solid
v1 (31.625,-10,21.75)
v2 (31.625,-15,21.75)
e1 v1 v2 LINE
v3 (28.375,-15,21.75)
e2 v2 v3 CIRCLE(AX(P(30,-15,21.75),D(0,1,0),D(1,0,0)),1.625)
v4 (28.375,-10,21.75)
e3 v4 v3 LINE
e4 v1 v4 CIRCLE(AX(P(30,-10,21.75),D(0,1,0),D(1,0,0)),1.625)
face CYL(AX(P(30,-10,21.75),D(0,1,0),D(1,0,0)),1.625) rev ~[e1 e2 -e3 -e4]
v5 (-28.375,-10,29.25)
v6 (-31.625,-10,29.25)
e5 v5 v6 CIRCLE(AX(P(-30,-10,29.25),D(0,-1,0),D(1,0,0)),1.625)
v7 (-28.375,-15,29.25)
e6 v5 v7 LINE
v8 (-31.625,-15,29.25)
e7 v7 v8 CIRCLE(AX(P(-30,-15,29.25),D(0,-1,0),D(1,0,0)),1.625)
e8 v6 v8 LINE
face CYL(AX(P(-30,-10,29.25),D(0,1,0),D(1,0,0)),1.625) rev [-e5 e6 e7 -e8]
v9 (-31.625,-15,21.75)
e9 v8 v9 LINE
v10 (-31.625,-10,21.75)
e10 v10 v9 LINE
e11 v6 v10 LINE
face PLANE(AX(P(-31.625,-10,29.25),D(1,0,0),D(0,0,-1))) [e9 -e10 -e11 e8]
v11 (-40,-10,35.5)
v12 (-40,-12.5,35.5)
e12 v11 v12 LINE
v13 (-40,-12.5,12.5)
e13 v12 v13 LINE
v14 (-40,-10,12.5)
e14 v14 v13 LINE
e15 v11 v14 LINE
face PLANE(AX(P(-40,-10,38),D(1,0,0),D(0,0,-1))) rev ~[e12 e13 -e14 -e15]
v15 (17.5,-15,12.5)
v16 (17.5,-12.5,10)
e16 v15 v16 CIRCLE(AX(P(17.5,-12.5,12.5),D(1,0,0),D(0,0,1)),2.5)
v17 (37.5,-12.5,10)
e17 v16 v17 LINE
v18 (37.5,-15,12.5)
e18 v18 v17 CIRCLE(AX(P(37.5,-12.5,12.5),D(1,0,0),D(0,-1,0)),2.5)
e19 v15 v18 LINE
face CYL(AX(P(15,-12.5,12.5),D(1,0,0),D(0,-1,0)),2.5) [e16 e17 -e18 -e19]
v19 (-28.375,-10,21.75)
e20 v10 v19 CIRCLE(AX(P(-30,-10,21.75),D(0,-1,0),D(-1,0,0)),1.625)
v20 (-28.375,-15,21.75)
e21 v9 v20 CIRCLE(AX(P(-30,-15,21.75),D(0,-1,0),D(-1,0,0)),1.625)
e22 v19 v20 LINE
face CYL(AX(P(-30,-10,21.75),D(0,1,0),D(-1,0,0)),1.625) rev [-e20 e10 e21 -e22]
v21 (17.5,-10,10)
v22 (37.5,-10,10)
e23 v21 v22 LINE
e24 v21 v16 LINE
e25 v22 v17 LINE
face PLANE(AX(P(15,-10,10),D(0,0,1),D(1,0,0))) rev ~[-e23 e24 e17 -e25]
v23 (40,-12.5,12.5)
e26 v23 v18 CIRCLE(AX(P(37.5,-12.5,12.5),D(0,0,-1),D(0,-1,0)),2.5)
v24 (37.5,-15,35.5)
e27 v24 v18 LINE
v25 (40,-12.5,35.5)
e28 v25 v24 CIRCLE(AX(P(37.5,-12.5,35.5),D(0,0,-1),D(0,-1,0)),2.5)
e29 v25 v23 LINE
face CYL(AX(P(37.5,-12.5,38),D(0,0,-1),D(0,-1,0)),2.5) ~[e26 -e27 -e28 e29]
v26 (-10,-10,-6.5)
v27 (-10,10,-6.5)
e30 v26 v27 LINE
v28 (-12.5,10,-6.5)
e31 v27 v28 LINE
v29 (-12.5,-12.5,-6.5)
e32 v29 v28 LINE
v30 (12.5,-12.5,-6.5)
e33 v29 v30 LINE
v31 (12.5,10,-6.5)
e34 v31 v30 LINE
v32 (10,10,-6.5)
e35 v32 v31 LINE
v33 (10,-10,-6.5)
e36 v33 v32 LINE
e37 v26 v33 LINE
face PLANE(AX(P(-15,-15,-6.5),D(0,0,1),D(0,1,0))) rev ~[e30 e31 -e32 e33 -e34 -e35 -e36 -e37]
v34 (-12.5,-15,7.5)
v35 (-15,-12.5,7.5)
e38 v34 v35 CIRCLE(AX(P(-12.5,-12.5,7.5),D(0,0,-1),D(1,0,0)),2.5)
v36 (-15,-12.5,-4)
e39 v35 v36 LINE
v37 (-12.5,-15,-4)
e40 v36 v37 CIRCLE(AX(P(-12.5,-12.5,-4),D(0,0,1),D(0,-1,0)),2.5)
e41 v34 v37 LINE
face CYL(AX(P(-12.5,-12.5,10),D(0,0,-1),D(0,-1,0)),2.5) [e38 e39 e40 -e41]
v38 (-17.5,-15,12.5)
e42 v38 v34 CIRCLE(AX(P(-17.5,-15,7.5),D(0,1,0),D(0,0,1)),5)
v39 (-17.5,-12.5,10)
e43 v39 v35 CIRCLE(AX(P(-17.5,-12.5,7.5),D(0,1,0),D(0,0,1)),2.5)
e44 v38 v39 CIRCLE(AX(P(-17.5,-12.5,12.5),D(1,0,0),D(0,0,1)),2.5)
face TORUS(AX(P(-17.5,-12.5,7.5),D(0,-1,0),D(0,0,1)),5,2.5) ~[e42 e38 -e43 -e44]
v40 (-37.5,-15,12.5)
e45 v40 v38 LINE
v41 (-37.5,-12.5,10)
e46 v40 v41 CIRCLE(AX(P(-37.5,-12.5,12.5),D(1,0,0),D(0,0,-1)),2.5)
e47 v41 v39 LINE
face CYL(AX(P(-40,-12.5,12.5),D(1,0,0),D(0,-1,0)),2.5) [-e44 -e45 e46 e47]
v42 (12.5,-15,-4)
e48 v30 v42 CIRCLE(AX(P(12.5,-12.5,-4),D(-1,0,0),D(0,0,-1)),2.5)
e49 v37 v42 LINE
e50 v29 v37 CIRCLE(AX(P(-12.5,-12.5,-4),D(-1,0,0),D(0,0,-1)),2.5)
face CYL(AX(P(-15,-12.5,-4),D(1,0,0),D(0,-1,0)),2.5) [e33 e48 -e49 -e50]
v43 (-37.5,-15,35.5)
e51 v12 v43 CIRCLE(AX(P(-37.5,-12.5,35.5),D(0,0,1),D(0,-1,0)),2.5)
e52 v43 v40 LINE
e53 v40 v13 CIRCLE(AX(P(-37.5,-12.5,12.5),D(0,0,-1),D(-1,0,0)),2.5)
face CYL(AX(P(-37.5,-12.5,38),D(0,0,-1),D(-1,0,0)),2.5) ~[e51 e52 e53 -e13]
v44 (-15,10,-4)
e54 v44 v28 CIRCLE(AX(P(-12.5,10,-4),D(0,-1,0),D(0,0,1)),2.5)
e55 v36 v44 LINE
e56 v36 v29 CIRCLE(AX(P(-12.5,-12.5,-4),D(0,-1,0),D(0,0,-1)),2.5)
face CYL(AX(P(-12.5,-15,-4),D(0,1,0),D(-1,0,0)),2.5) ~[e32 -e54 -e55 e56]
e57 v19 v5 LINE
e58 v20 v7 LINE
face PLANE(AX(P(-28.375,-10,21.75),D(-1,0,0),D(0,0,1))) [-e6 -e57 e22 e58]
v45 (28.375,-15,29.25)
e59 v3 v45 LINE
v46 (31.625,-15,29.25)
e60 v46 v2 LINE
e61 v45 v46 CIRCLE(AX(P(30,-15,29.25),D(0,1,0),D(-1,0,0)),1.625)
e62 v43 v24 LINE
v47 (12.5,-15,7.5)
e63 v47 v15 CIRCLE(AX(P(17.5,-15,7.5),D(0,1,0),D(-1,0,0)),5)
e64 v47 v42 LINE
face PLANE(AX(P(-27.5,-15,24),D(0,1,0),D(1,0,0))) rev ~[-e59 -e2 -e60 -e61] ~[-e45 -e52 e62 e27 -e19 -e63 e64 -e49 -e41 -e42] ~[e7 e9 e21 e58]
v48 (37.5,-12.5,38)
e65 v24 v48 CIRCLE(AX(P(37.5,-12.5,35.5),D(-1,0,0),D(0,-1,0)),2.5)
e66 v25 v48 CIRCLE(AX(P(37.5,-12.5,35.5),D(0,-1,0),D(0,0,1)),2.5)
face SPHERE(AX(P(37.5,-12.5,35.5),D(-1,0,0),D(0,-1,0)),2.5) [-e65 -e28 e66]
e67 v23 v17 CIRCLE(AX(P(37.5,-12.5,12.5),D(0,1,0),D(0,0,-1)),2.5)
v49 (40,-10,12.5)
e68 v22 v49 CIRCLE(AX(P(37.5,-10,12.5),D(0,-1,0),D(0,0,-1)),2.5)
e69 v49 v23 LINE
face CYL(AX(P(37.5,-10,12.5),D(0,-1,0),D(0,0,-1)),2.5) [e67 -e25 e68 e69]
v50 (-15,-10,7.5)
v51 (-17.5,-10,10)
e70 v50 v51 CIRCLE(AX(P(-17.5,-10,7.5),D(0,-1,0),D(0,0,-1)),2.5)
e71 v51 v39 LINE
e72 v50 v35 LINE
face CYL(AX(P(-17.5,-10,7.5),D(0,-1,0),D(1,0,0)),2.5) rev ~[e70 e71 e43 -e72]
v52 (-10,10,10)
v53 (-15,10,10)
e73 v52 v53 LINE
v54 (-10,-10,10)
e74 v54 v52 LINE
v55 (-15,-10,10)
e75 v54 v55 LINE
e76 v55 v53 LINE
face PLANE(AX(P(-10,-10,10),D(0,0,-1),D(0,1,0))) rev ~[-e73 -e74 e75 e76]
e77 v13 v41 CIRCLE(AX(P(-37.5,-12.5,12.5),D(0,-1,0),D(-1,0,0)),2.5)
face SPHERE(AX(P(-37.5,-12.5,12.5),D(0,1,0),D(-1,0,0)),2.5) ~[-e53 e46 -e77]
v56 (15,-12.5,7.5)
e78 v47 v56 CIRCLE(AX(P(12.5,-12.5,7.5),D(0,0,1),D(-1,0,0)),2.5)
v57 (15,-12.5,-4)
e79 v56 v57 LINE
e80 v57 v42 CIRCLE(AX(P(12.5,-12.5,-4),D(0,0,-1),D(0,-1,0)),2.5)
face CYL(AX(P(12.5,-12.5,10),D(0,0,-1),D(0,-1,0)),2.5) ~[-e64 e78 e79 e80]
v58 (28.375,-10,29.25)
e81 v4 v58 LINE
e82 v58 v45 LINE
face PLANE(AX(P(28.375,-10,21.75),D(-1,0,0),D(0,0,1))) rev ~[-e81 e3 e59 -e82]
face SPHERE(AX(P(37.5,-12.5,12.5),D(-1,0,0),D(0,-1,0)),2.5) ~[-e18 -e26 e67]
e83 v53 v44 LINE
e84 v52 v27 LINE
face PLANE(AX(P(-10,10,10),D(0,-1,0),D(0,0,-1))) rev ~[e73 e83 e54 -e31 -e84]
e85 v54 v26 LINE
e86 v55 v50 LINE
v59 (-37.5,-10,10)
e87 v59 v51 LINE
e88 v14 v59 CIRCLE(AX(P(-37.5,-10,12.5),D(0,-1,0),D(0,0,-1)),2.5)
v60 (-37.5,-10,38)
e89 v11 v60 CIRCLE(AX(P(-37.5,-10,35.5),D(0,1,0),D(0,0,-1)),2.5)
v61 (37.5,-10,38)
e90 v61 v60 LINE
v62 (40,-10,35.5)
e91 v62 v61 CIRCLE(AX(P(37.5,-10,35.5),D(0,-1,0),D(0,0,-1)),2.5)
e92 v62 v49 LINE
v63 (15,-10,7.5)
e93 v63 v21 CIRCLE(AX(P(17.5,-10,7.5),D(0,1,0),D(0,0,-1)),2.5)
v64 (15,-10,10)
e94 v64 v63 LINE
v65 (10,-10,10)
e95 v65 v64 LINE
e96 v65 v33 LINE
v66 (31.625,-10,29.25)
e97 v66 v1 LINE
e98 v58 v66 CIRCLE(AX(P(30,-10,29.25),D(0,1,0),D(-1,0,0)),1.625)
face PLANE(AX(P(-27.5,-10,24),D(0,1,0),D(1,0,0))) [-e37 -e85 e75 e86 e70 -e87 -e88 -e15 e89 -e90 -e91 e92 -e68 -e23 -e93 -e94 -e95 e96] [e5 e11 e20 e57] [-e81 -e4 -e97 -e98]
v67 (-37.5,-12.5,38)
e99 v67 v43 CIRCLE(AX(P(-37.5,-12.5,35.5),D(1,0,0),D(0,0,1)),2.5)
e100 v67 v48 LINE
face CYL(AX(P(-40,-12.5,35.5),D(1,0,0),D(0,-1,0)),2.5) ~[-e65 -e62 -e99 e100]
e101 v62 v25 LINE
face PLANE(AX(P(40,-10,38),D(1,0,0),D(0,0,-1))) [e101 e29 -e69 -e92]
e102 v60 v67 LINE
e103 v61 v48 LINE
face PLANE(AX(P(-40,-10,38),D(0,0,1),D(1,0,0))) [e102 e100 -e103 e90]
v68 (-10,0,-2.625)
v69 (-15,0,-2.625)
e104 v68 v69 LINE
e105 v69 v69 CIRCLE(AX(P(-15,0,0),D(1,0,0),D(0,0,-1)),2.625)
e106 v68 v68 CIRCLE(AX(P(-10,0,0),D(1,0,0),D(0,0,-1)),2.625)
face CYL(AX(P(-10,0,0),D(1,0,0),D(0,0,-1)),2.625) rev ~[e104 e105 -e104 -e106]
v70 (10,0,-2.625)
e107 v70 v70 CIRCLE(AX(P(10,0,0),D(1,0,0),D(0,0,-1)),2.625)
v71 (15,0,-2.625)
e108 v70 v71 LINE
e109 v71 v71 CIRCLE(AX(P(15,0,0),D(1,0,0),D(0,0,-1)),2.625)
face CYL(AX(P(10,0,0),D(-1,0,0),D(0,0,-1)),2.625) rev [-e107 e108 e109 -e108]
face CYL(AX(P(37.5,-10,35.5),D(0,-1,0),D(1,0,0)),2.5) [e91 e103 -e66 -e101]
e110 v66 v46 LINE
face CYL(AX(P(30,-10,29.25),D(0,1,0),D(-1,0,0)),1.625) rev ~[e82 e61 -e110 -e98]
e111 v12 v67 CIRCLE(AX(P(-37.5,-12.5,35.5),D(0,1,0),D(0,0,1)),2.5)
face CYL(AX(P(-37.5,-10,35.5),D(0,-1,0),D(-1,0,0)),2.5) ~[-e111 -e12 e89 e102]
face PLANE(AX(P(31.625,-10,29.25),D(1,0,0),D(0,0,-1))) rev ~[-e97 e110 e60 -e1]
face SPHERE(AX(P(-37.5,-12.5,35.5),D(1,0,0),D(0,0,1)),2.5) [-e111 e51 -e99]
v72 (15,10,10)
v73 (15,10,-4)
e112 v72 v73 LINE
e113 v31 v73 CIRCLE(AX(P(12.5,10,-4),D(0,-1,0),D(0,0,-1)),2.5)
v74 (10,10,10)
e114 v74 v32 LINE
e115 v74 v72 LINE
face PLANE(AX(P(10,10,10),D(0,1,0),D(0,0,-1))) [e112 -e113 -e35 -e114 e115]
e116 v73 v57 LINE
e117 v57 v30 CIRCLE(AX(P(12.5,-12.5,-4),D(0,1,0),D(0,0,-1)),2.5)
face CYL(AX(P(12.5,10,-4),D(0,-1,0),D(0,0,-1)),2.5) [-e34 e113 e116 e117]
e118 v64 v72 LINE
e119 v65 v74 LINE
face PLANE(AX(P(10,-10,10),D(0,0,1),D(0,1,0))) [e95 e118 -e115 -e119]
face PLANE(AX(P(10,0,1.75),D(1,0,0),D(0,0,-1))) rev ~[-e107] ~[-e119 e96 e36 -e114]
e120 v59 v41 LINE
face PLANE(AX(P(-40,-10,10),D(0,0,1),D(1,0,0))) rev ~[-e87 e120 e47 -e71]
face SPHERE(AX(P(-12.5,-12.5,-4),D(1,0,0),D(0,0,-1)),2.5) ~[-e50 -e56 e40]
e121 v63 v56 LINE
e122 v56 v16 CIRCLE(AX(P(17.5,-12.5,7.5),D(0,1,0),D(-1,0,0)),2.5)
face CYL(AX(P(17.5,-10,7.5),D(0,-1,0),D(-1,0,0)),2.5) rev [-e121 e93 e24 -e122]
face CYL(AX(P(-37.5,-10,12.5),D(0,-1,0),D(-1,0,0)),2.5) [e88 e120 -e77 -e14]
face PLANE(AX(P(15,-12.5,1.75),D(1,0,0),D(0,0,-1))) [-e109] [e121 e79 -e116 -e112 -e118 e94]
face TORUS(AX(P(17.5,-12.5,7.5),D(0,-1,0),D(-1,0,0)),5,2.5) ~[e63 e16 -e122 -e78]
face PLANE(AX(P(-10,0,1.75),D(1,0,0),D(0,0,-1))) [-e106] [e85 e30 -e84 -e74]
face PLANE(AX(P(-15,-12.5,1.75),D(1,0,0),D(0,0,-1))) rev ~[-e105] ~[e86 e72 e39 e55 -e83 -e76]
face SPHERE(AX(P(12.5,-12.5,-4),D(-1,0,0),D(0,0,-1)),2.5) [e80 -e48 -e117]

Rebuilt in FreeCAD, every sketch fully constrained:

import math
import FreeCAD as App
import Part
import Sketcher
Q = App.Units.Quantity


def edges_at(feature, points):
    """Names of the edges that pass closest to the given points."""
    edges = feature.Shape.Edges
    near = lambda p: min(range(len(edges)), key=lambda i: edges[i].distToShape(Part.Vertex(*p))[0])
    return sorted({f"Edge{near(p) + 1}" for p in points})

doc = App.newDocument("Part")
body = doc.addObject("PartDesign::Body", "Body")

sketch1 = doc.addObject("Sketcher::SketchObject", "Sketch")
body.addObject(sketch1)
sketch1.AttachmentSupport = (doc.YZ_Plane, [""])
sketch1.MapMode = "FlatFace"
sketch1.AttachmentOffset = App.Placement(App.Vector(0, 0, 10), App.Rotation())
sketch1.addGeometry(Part.LineSegment(App.Vector(10, 10, 0), App.Vector(-10, 10, 0)), False)
sketch1.addGeometry(Part.LineSegment(App.Vector(-10, 10, 0), App.Vector(-10, -6.5, 0)), False)
sketch1.addGeometry(Part.LineSegment(App.Vector(-10, -6.5, 0), App.Vector(10, -6.5, 0)), False)
sketch1.addGeometry(Part.LineSegment(App.Vector(10, -6.5, 0), App.Vector(10, 10, 0)), False)
sketch1.addGeometry(Part.Circle(App.Vector(0, 0, 0), App.Vector(0, 0, 1), 2.6), False)
sketch1.addConstraint(Sketcher.Constraint("Coincident", 0, 2, 1, 1))
sketch1.addConstraint(Sketcher.Constraint("Coincident", 1, 2, 2, 1))
sketch1.addConstraint(Sketcher.Constraint("Coincident", 2, 2, 3, 1))
sketch1.addConstraint(Sketcher.Constraint("Coincident", 3, 2, 0, 1))
sketch1.addConstraint(Sketcher.Constraint("Horizontal", 0))
sketch1.addConstraint(Sketcher.Constraint("Vertical", 1))
sketch1.addConstraint(Sketcher.Constraint("Horizontal", 2))
sketch1.addConstraint(Sketcher.Constraint("Vertical", 3))
sketch1.addConstraint(Sketcher.Constraint("Coincident", 4, 3, -1, 1))
sketch1.addConstraint(Sketcher.Constraint("Diameter", 4, Q("5.25 mm")))
sketch1.addConstraint(Sketcher.Constraint("DistanceX", 0, 2, 0, 1, Q("20 mm")))
sketch1.addConstraint(Sketcher.Constraint("DistanceY", 1, 2, 1, 1, Q("16.5 mm")))
sketch1.addConstraint(Sketcher.Constraint("DistanceX", 0, 2, -1, 1, Q("10 mm")))
sketch1.addConstraint(Sketcher.Constraint("DistanceY", -1, 1, 0, 2, Q("10 mm")))
pad1 = doc.addObject("PartDesign::Pad", "Pad")
body.addObject(pad1)
pad1.Profile = sketch1
pad1.Length = 5
body2 = doc.addObject("PartDesign::Body", "Body001")

sketch2 = doc.addObject("Sketcher::SketchObject", "Sketch001")
body2.addObject(sketch2)
sketch2.AttachmentSupport = (doc.getObject("YZ_Plane001"), [""])
sketch2.MapMode = "FlatFace"
sketch2.AttachmentOffset = App.Placement(App.Vector(0, 0, -10), App.Rotation())
sketch2.addGeometry(Part.LineSegment(App.Vector(10, 10, 0), App.Vector(-10, 10, 0)), False)
sketch2.addGeometry(Part.LineSegment(App.Vector(-10, 10, 0), App.Vector(-10, -6.5, 0)), False)
sketch2.addGeometry(Part.LineSegment(App.Vector(-10, -6.5, 0), App.Vector(10, -6.5, 0)), False)
sketch2.addGeometry(Part.LineSegment(App.Vector(10, -6.5, 0), App.Vector(10, 10, 0)), False)
sketch2.addGeometry(Part.Circle(App.Vector(0, 0, 0), App.Vector(0, 0, 1), 2.6), False)
sketch2.addConstraint(Sketcher.Constraint("Coincident", 0, 2, 1, 1))
sketch2.addConstraint(Sketcher.Constraint("Coincident", 1, 2, 2, 1))
sketch2.addConstraint(Sketcher.Constraint("Coincident", 2, 2, 3, 1))
sketch2.addConstraint(Sketcher.Constraint("Coincident", 3, 2, 0, 1))
sketch2.addConstraint(Sketcher.Constraint("Horizontal", 0))
sketch2.addConstraint(Sketcher.Constraint("Vertical", 1))
sketch2.addConstraint(Sketcher.Constraint("Horizontal", 2))
sketch2.addConstraint(Sketcher.Constraint("Vertical", 3))
sketch2.addConstraint(Sketcher.Constraint("Coincident", 4, 3, -1, 1))
sketch2.addConstraint(Sketcher.Constraint("Diameter", 4, Q("5.25 mm")))
sketch2.addConstraint(Sketcher.Constraint("DistanceX", 0, 2, 0, 1, Q("20 mm")))
sketch2.addConstraint(Sketcher.Constraint("DistanceY", 1, 2, 1, 1, Q("16.5 mm")))
sketch2.addConstraint(Sketcher.Constraint("DistanceX", 0, 2, -1, 1, Q("10 mm")))
sketch2.addConstraint(Sketcher.Constraint("DistanceY", -1, 1, 0, 2, Q("10 mm")))
pad2 = doc.addObject("PartDesign::Pad", "Pad001")
body2.addObject(pad2)
pad2.Profile = sketch2
pad2.Length = 5
pad2.Reversed = True
body.AllowCompound = True
doc.recompute()

boolean = doc.addObject("PartDesign::Boolean", "Boolean")
body.addObject(boolean)
boolean.Type = "Fuse"
boolean.addObjects([body2])

sketch3 = doc.addObject("Sketcher::SketchObject", "Sketch002")
body.addObject(sketch3)
sketch3.AttachmentSupport = (doc.YZ_Plane, [""])
sketch3.MapMode = "FlatFace"
sketch3.AttachmentOffset = App.Placement(App.Vector(0, 0, -15), App.Rotation())
sketch3.addGeometry(Part.LineSegment(App.Vector(-15, -6, 0), App.Vector(-10, -6, 0)), False)
sketch3.addGeometry(Part.LineSegment(App.Vector(-10, -6, 0), App.Vector(-10, 38, 0)), False)
sketch3.addGeometry(Part.LineSegment(App.Vector(-10, 38, 0), App.Vector(-15, 38, 0)), False)
sketch3.addGeometry(Part.LineSegment(App.Vector(-15, 38, 0), App.Vector(-15, -6, 0)), False)
sketch3.addConstraint(Sketcher.Constraint("Coincident", 0, 2, 1, 1))
sketch3.addConstraint(Sketcher.Constraint("Coincident", 1, 2, 2, 1))
sketch3.addConstraint(Sketcher.Constraint("Coincident", 2, 2, 3, 1))
sketch3.addConstraint(Sketcher.Constraint("Coincident", 3, 2, 0, 1))
sketch3.addConstraint(Sketcher.Constraint("Horizontal", 0))
sketch3.addConstraint(Sketcher.Constraint("Vertical", 1))
sketch3.addConstraint(Sketcher.Constraint("Horizontal", 2))
sketch3.addConstraint(Sketcher.Constraint("Vertical", 3))
sketch3.addConstraint(Sketcher.Constraint("DistanceX", 0, 1, 0, 2, Q("5 mm")))
sketch3.addConstraint(Sketcher.Constraint("DistanceY", 1, 1, 1, 2, Q("44.5 mm")))
sketch3.addConstraint(Sketcher.Constraint("DistanceX", 0, 2, -1, 1, Q("10 mm")))
sketch3.addConstraint(Sketcher.Constraint("DistanceY", -1, 1, 1, 2, Q("38 mm")))
pad3 = doc.addObject("PartDesign::Pad", "Pad002")
body.addObject(pad3)
pad3.Profile = sketch3
pad3.Length = 30

sketch4 = doc.addObject("Sketcher::SketchObject", "Sketch003")
body.addObject(sketch4)
sketch4.AttachmentSupport = (doc.XZ_Plane, [""])
sketch4.MapMode = "FlatFace"
sketch4.AttachmentOffset = App.Placement(App.Vector(0, 0, 10), App.Rotation())
sketch4.addGeometry(Part.LineSegment(App.Vector(-40, 10, 0), App.Vector(-40, 38, 0)), False)
sketch4.addGeometry(Part.LineSegment(App.Vector(-40, 38, 0), App.Vector(-15, 38, 0)), False)
sketch4.addGeometry(Part.LineSegment(App.Vector(-15, 38, 0), App.Vector(-15, 10, 0)), False)
sketch4.addGeometry(Part.LineSegment(App.Vector(-15, 10, 0), App.Vector(-40, 10, 0)), False)
sketch4.addGeometry(Part.ArcOfCircle(Part.Circle(App.Vector(-30, 29.2, 0), App.Vector(0, 0, 1), 1.6), math.radians(0), math.radians(180)), False)
sketch4.addGeometry(Part.LineSegment(App.Vector(-31.6, 29.2, 0), App.Vector(-31.6, 21.8, 0)), False)
sketch4.addGeometry(Part.ArcOfCircle(Part.Circle(App.Vector(-30, 21.8, 0), App.Vector(0, 0, 1), 1.6), math.radians(180), math.radians(360)), False)
sketch4.addGeometry(Part.LineSegment(App.Vector(-28.4, 21.8, 0), App.Vector(-28.4, 29.2, 0)), False)
sketch4.addGeometry(Part.LineSegment(App.Vector(15, 10, 0), App.Vector(15, 38, 0)), False)
sketch4.addGeometry(Part.LineSegment(App.Vector(15, 38, 0), App.Vector(40, 38, 0)), False)
sketch4.addGeometry(Part.LineSegment(App.Vector(40, 38, 0), App.Vector(40, 10, 0)), False)
sketch4.addGeometry(Part.LineSegment(App.Vector(40, 10, 0), App.Vector(15, 10, 0)), False)
sketch4.addGeometry(Part.LineSegment(App.Vector(31.6, 21.8, 0), App.Vector(31.6, 29.2, 0)), False)
sketch4.addGeometry(Part.ArcOfCircle(Part.Circle(App.Vector(30, 29.2, 0), App.Vector(0, 0, 1), 1.6), math.radians(0), math.radians(180)), False)
sketch4.addGeometry(Part.LineSegment(App.Vector(28.4, 29.2, 0), App.Vector(28.4, 21.8, 0)), False)
sketch4.addGeometry(Part.ArcOfCircle(Part.Circle(App.Vector(30, 21.8, 0), App.Vector(0, 0, 1), 1.6), math.radians(180), math.radians(360)), False)
sketch4.addConstraint(Sketcher.Constraint("Coincident", 0, 2, 1, 1))
sketch4.addConstraint(Sketcher.Constraint("Coincident", 1, 2, 2, 1))
sketch4.addConstraint(Sketcher.Constraint("Coincident", 2, 2, 3, 1))
sketch4.addConstraint(Sketcher.Constraint("Coincident", 3, 2, 0, 1))
sketch4.addConstraint(Sketcher.Constraint("Tangent", 4, 2, 5, 1))
sketch4.addConstraint(Sketcher.Constraint("Tangent", 5, 2, 6, 1))
sketch4.addConstraint(Sketcher.Constraint("Tangent", 6, 2, 7, 1))
sketch4.addConstraint(Sketcher.Constraint("Tangent", 7, 2, 4, 1))
sketch4.addConstraint(Sketcher.Constraint("Coincident", 8, 2, 9, 1))
sketch4.addConstraint(Sketcher.Constraint("Coincident", 9, 2, 10, 1))
sketch4.addConstraint(Sketcher.Constraint("Coincident", 10, 2, 11, 1))
sketch4.addConstraint(Sketcher.Constraint("Coincident", 11, 2, 8, 1))
sketch4.addConstraint(Sketcher.Constraint("Tangent", 12, 2, 13, 1))
sketch4.addConstraint(Sketcher.Constraint("Tangent", 13, 2, 14, 1))
sketch4.addConstraint(Sketcher.Constraint("Tangent", 14, 2, 15, 1))
sketch4.addConstraint(Sketcher.Constraint("Tangent", 15, 2, 12, 1))
sketch4.addConstraint(Sketcher.Constraint("Vertical", 0))
sketch4.addConstraint(Sketcher.Constraint("Horizontal", 1))
sketch4.addConstraint(Sketcher.Constraint("Vertical", 2))
sketch4.addConstraint(Sketcher.Constraint("Horizontal", 3))
sketch4.addConstraint(Sketcher.Constraint("Vertical", 5))
sketch4.addConstraint(Sketcher.Constraint("Vertical", 7))
sketch4.addConstraint(Sketcher.Constraint("Vertical", 8))
sketch4.addConstraint(Sketcher.Constraint("Horizontal", 9))
sketch4.addConstraint(Sketcher.Constraint("Vertical", 10))
sketch4.addConstraint(Sketcher.Constraint("Horizontal", 11))
sketch4.addConstraint(Sketcher.Constraint("Vertical", 12))
sketch4.addConstraint(Sketcher.Constraint("Vertical", 14))
sketch4.addConstraint(Sketcher.Constraint("Equal", 6, 13))
sketch4.addConstraint(Sketcher.Constraint("Symmetric", 4, 3, 13, 3, -2))
sketch4.addConstraint(Sketcher.Constraint("Symmetric", 1, 2, 8, 2, -2))
sketch4.addConstraint(Sketcher.Constraint("Symmetric", 3, 2, 10, 2, -2))
sketch4.addConstraint(Sketcher.Constraint("Horizontal", 6, 3, 15, 3))
sketch4.addConstraint(Sketcher.Constraint("DistanceX", 1, 1, 1, 2, Q("25 mm")))
sketch4.addConstraint(Sketcher.Constraint("DistanceY", 0, 1, 0, 2, Q("28 mm")))
sketch4.addConstraint(Sketcher.Constraint("DistanceY", 5, 2, 5, 1, Q("7.5 mm")))
sketch4.addConstraint(Sketcher.Constraint("DistanceX", 4, 3, -1, 1, Q("30 mm")))
sketch4.addConstraint(Sketcher.Constraint("DistanceX", 0, 2, -1, 1, Q("40 mm")))
sketch4.addConstraint(Sketcher.Constraint("DistanceY", -1, 1, 0, 2, Q("38 mm")))
sketch4.addConstraint(Sketcher.Constraint("Radius", 4, Q("1.625 mm")))
sketch4.addConstraint(Sketcher.Constraint("DistanceY", -1, 1, 4, 3, Q("29.25 mm")))
pad4 = doc.addObject("PartDesign::Pad", "Pad003")
body.addObject(pad4)
pad4.Profile = sketch4
pad4.Length = 5
doc.recompute()

fillet = doc.addObject("PartDesign::Fillet", "Fillet")
body.addObject(fillet)
fillet.Base = (pad4, edges_at(pad4, [
    (0, -15, -6.5),
    (-15, -2.5, -6.5),
    (0, -15, 38),
    (-15, -15, 1.75),
    (15, -2.5, -6.5),
    (15, -15, 1.75),
    (-40, -12.5, 38),
    (-40, -12.5, 10),
    (-15, -12.5, 10),
    (-40, -15, 24),
    (-27.5, -15, 10),
    (27.5, -15, 10),
    (15, -12.5, 10),
    (40, -15, 24),
    (40, -12.5, 10),
    (40, -12.5, 38),
]))
fillet.Radius = 2.5

doc.recompute()
